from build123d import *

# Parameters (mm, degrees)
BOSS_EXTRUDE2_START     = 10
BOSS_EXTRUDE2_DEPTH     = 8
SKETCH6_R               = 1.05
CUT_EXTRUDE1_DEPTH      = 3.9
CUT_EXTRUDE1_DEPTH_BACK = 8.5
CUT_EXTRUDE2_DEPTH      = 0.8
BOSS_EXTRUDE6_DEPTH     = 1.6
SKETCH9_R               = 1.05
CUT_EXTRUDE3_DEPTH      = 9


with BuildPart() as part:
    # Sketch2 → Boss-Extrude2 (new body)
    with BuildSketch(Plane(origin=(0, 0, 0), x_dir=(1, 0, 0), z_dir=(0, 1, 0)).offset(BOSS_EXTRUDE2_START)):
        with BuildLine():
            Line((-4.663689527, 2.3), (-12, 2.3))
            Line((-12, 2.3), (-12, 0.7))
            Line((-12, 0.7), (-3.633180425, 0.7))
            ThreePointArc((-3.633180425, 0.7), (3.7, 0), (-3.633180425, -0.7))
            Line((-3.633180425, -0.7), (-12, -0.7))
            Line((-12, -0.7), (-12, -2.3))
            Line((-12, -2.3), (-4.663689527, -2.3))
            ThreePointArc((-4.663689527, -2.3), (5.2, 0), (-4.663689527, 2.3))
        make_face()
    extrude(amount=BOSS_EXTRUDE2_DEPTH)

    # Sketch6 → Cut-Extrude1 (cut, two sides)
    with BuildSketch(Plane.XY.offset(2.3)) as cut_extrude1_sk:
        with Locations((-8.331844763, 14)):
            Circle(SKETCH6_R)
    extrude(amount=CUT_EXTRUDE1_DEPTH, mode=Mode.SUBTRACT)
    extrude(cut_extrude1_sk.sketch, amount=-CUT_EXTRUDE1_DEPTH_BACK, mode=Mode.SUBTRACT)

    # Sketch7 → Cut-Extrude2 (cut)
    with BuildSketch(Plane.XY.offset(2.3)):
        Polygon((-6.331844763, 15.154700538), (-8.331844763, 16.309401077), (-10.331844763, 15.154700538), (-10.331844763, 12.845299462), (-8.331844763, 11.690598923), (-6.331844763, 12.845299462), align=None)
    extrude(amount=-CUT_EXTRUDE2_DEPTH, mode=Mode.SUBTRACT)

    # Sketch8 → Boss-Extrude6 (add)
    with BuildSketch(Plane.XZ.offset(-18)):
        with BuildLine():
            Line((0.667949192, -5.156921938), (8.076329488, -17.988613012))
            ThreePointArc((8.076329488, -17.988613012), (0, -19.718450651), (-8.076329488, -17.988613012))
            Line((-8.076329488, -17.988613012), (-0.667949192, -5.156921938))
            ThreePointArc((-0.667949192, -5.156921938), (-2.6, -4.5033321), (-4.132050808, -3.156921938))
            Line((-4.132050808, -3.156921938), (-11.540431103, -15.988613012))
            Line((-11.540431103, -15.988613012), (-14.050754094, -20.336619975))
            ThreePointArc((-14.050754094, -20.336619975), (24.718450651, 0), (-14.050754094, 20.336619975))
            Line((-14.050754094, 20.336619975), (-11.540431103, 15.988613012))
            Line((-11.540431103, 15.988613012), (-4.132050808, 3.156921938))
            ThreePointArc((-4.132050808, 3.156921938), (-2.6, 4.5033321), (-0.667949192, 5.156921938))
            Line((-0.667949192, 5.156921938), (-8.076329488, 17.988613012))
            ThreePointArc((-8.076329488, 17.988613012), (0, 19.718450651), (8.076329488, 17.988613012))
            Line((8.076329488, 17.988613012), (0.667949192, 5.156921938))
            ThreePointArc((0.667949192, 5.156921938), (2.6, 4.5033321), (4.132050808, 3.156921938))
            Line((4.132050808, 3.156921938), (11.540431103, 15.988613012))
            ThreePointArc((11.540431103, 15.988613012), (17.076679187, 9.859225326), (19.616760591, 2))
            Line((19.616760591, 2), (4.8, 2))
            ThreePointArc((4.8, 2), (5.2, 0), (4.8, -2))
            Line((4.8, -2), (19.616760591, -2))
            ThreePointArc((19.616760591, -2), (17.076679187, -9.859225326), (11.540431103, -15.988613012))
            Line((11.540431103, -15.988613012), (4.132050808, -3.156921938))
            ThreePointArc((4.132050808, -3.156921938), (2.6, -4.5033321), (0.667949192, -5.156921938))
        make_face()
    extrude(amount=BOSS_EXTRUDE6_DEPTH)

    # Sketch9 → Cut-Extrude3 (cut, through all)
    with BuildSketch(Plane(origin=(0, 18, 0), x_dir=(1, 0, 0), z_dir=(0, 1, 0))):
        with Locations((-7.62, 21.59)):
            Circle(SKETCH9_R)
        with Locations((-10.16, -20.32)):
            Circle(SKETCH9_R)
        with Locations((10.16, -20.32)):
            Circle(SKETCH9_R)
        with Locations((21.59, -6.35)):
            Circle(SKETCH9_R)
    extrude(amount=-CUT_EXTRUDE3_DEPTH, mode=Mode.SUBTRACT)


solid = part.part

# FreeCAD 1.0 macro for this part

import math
import FreeCAD as App
import Part
import Sketcher
from FreeCAD import Vector
Q = App.Units.Quantity


def add_polygon(sketch, points):
    """Adds a closed chain of lines whose ends are joined by coincident constraints."""
    first, n = sketch.GeometryCount, len(points)
    for a, b in zip(points, points[1:] + points[:1]):
        sketch.addGeometry(Part.LineSegment(App.Vector(*a, 0), App.Vector(*b, 0)), False)
    for i in range(n):
        sketch.addConstraint(Sketcher.Constraint("Coincident", first + i, 2, first + (i + 1) % n, 1))

doc = App.newDocument("Part")
body = doc.addObject("PartDesign::Body", "Body")

# Sketch on XZ plane
sketch1 = body.newObject("Sketcher::SketchObject", "Sketch")
sketch1.AttachmentSupport = (doc.getObject("XZ_Plane"), [""])
sketch1.MapMode = "FlatFace"
sketch1.AttachmentOffset = App.Placement(Vector(0, 0, -10), App.Rotation())
sketch1.addGeometry(Part.LineSegment(Vector(-4.7, -2.3, 0), Vector(-12, -2.3, 0)), False)
sketch1.addGeometry(Part.LineSegment(Vector(-12, -2.3, 0), Vector(-12, -0.7, 0)), False)
sketch1.addGeometry(Part.LineSegment(Vector(-12, -0.7, 0), Vector(-3.6, -0.7, 0)), False)
sketch1.addGeometry(Part.ArcOfCircle(Part.Circle(Vector(0, 0, 0), Vector(0, 0, 1), 3.7), math.radians(-169), math.radians(169)), False)
sketch1.addGeometry(Part.LineSegment(Vector(-3.6, 0.7, 0), Vector(-12, 0.7, 0)), False)
sketch1.addGeometry(Part.LineSegment(Vector(-12, 0.7, 0), Vector(-12, 2.3, 0)), False)
sketch1.addGeometry(Part.LineSegment(Vector(-12, 2.3, 0), Vector(-4.7, 2.3, 0)), False)
sketch1.addGeometry(Part.ArcOfCircle(Part.Circle(Vector(0, 0, 0), Vector(0, 0, 1), 5.2), math.radians(-154), math.radians(154)), False)
sketch1.addConstraint(Sketcher.Constraint("Coincident", 0, 2, 1, 1))
sketch1.addConstraint(Sketcher.Constraint("Coincident", 1, 2, 2, 1))
sketch1.addConstraint(Sketcher.Constraint("Coincident", 2, 2, 3, 1))
sketch1.addConstraint(Sketcher.Constraint("Coincident", 3, 2, 4, 1))
sketch1.addConstraint(Sketcher.Constraint("Coincident", 4, 2, 5, 1))
sketch1.addConstraint(Sketcher.Constraint("Coincident", 5, 2, 6, 1))
sketch1.addConstraint(Sketcher.Constraint("Coincident", 6, 2, 7, 2))
sketch1.addConstraint(Sketcher.Constraint("Coincident", 7, 1, 0, 1))
sketch1.addConstraint(Sketcher.Constraint("Horizontal", 0))
sketch1.addConstraint(Sketcher.Constraint("Vertical", 1))
sketch1.addConstraint(Sketcher.Constraint("Horizontal", 2))
sketch1.addConstraint(Sketcher.Constraint("Horizontal", 4))
sketch1.addConstraint(Sketcher.Constraint("Vertical", 5))
sketch1.addConstraint(Sketcher.Constraint("Horizontal", 6))
sketch1.addConstraint(Sketcher.Constraint("Coincident", 3, 3, -1, 1))
sketch1.addConstraint(Sketcher.Constraint("Coincident", 7, 3, -1, 1))
sketch1.addConstraint(Sketcher.Constraint("Symmetric", 1, 2, 4, 2, -1))
sketch1.addConstraint(Sketcher.Constraint("Vertical", 6, 2, 7, 1))
sketch1.addConstraint(Sketcher.Constraint("Radius", 3, 3.7))
sketch1.addConstraint(Sketcher.Constraint("Radius", 7, 5.2))
sketch1.addConstraint(Sketcher.Constraint("DistanceY", 1, 1, 1, 2, 1.6))
sketch1.addConstraint(Sketcher.Constraint("DistanceX", 0, 2, -1, 1, 12.0))
sketch1.addConstraint(Sketcher.Constraint("DistanceY", 0, 2, 3, 2, 3.0))
pad1 = body.newObject("PartDesign::Pad", "Pad")
pad1.Profile = sketch1
pad1.Length = 8
pad1.Reversed = True

# Sketch on XY plane
sketch2 = body.newObject("Sketcher::SketchObject", "Sketch001")
sketch2.AttachmentSupport = (doc.getObject("XY_Plane"), [""])
sketch2.MapMode = "FlatFace"
sketch2.AttachmentOffset = App.Placement(Vector(0, 0, 2.3), App.Rotation())
sketch2.addGeometry(Part.Circle(Vector(-8.3, 14, 0), Vector(0, 0, 1), 1.1), False)
sketch2.addConstraint(Sketcher.Constraint("Diameter", 0, 2.1))
sketch2.addConstraint(Sketcher.Constraint("DistanceY", -1, 1, 0, 3, 14.0))
sketch2.addConstraint(Sketcher.Constraint("DistanceX", 0, 3, -1, 1, 8.331845))
pocket1 = body.newObject("PartDesign::Pocket", "Pocket")
pocket1.Profile = sketch2
pocket1.Type = "ThroughAll"
pocket1.Midplane = True

# Sketch on XY plane
sketch3 = body.newObject("Sketcher::SketchObject", "Sketch002")
sketch3.AttachmentSupport = (doc.getObject("XY_Plane"), [""])
sketch3.MapMode = "FlatFace"
sketch3.AttachmentOffset = App.Placement(Vector(0, 0, 2.3), App.Rotation())
add_polygon(sketch3, [(-6.3, 15.2), (-8.3, 16.3), (-10.3, 15.2), (-10.3, 12.8), (-8.3, 11.7), (-6.3, 12.8)])  # lines 0-5
sketch3.addConstraint(Sketcher.Constraint("Vertical", 2))
sketch3.addConstraint(Sketcher.Constraint("Vertical", 5))
sketch3.addConstraint(Sketcher.Constraint("Parallel", 0, 3))
sketch3.addConstraint(Sketcher.Constraint("Parallel", 1, 4))
sketch3.addConstraint(Sketcher.Constraint("Horizontal", 2, 2, 4, 2))
sketch3.addConstraint(Sketcher.Constraint("Horizontal", 1, 2, 5, 2))
sketch3.addConstraint(Sketcher.Constraint("Vertical", 0, 2, 3, 2))
sketch3.addConstraint(Sketcher.Constraint("Angle", 0, Q("150 deg")))
sketch3.addConstraint(Sketcher.Constraint("DistanceX", 1, 2, 0, 2, 2.0))
sketch3.addConstraint(Sketcher.Constraint("DistanceY", 2, 2, 2, 1, 2.309401))
sketch3.addConstraint(Sketcher.Constraint("DistanceY", -1, 1, 0, 2, 16.309401))
sketch3.addConstraint(Sketcher.Constraint("DistanceX", 0, 2, -1, 1, 8.331845))
pocket2 = body.newObject("PartDesign::Pocket", "Pocket001")
pocket2.Profile = sketch3
pocket2.Length = 0.8

# Sketch on XZ plane
sketch4 = body.newObject("Sketcher::SketchObject", "Sketch003")
sketch4.AttachmentSupport = (doc.getObject("XZ_Plane"), [""])
sketch4.MapMode = "FlatFace"
sketch4.AttachmentOffset = App.Placement(Vector(0, 0, -18), App.Rotation())
sketch4.addGeometry(Part.LineSegment(Vector(0.7, -5.2, 0), Vector(8.1, -18, 0)), False)
sketch4.addGeometry(Part.ArcOfCircle(Part.Circle(Vector(0, 0, 0), Vector(0, 0, 1), 19.7), math.radians(-114), math.radians(-66)), False)
sketch4.addGeometry(Part.LineSegment(Vector(-8.1, -18, 0), Vector(-0.7, -5.2, 0)), False)
sketch4.addGeometry(Part.ArcOfCircle(Part.Circle(Vector(0, 0, 0), Vector(0, 0, 1), 5.2), math.radians(-143), math.radians(-97)), False)
sketch4.addGeometry(Part.LineSegment(Vector(-4.1, -3.2, 0), Vector(-11.5, -16, 0)), False)
sketch4.addGeometry(Part.LineSegment(Vector(-11.5, -16, 0), Vector(-14.1, -20.3, 0)), False)
sketch4.addGeometry(Part.ArcOfCircle(Part.Circle(Vector(0, 0, 0), Vector(0, 0, 1), 24.7), math.radians(-125), math.radians(125)), False)
sketch4.addGeometry(Part.LineSegment(Vector(-14.1, 20.3, 0), Vector(-11.5, 16, 0)), False)
sketch4.addGeometry(Part.LineSegment(Vector(-11.5, 16, 0), Vector(-4.1, 3.2, 0)), False)
sketch4.addGeometry(Part.ArcOfCircle(Part.Circle(Vector(0, 0, 0), Vector(0, 0, 1), 5.2), math.radians(97), math.radians(143)), False)
sketch4.addGeometry(Part.LineSegment(Vector(-0.7, 5.2, 0), Vector(-8.1, 18, 0)), False)
sketch4.addGeometry(Part.ArcOfCircle(Part.Circle(Vector(0, 0, 0), Vector(0, 0, 1), 19.7), math.radians(66), math.radians(114)), False)
sketch4.addGeometry(Part.LineSegment(Vector(8.1, 18, 0), Vector(0.7, 5.2, 0)), False)
sketch4.addGeometry(Part.ArcOfCircle(Part.Circle(Vector(0, 0, 0), Vector(0, 0, 1), 5.2), math.radians(37), math.radians(83)), False)
sketch4.addGeometry(Part.LineSegment(Vector(4.1, 3.2, 0), Vector(11.5, 16, 0)), False)
sketch4.addGeometry(Part.ArcOfCircle(Part.Circle(Vector(0, 0, 0), Vector(0, 0, 1), 19.7), math.radians(6), math.radians(54)), False)
sketch4.addGeometry(Part.LineSegment(Vector(19.6, 2, 0), Vector(4.8, 2, 0)), False)
sketch4.addGeometry(Part.ArcOfCircle(Part.Circle(Vector(0, 0, 0), Vector(0, 0, 1), 5.2), math.radians(-23), math.radians(23)), False)
sketch4.addGeometry(Part.LineSegment(Vector(4.8, -2, 0), Vector(19.6, -2, 0)), False)
sketch4.addGeometry(Part.ArcOfCircle(Part.Circle(Vector(0, 0, 0), Vector(0, 0, 1), 19.7), math.radians(-54), math.radians(-6)), False)
sketch4.addGeometry(Part.LineSegment(Vector(11.5, -16, 0), Vector(4.1, -3.2, 0)), False)
sketch4.addGeometry(Part.ArcOfCircle(Part.Circle(Vector(0, 0, 0), Vector(0, 0, 1), 5.2), math.radians(-83), math.radians(-37)), False)
sketch4.addConstraint(Sketcher.Constraint("Coincident", 0, 2, 1, 2))
sketch4.addConstraint(Sketcher.Constraint("Coincident", 1, 1, 2, 1))
sketch4.addConstraint(Sketcher.Constraint("Coincident", 2, 2, 3, 2))
sketch4.addConstraint(Sketcher.Constraint("Coincident", 3, 1, 4, 1))
sketch4.addConstraint(Sketcher.Constraint("Coincident", 4, 2, 5, 1))
sketch4.addConstraint(Sketcher.Constraint("Coincident", 5, 2, 6, 1))
sketch4.addConstraint(Sketcher.Constraint("Coincident", 6, 2, 7, 1))
sketch4.addConstraint(Sketcher.Constraint("Coincident", 7, 2, 8, 1))
sketch4.addConstraint(Sketcher.Constraint("Coincident", 8, 2, 9, 2))
sketch4.addConstraint(Sketcher.Constraint("Coincident", 9, 1, 10, 1))
sketch4.addConstraint(Sketcher.Constraint("Coincident", 10, 2, 11, 2))
sketch4.addConstraint(Sketcher.Constraint("Coincident", 11, 1, 12, 1))
sketch4.addConstraint(Sketcher.Constraint("Coincident", 12, 2, 13, 2))
sketch4.addConstraint(Sketcher.Constraint("Coincident", 13, 1, 14, 1))
sketch4.addConstraint(Sketcher.Constraint("Coincident", 14, 2, 15, 2))
sketch4.addConstraint(Sketcher.Constraint("Coincident", 15, 1, 16, 1))
sketch4.addConstraint(Sketcher.Constraint("Coincident", 16, 2, 17, 2))
sketch4.addConstraint(Sketcher.Constraint("Coincident", 17, 1, 18, 1))
sketch4.addConstraint(Sketcher.Constraint("Coincident", 18, 2, 19, 2))
sketch4.addConstraint(Sketcher.Constraint("Coincident", 19, 1, 20, 1))
sketch4.addConstraint(Sketcher.Constraint("Coincident", 20, 2, 21, 2))
sketch4.addConstraint(Sketcher.Constraint("Coincident", 21, 1, 0, 1))
sketch4.addConstraint(Sketcher.Constraint("Horizontal", 16))
sketch4.addConstraint(Sketcher.Constraint("Horizontal", 18))
sketch4.addConstraint(Sketcher.Constraint("Coincident", 1, 3, -1, 1))
sketch4.addConstraint(Sketcher.Constraint("Coincident", 3, 3, -1, 1))
sketch4.addConstraint(Sketcher.Constraint("Coincident", 6, 3, -1, 1))
sketch4.addConstraint(Sketcher.Constraint("Coincident", 9, 3, -1, 1))
sketch4.addConstraint(Sketcher.Constraint("Coincident", 11, 3, -1, 1))
sketch4.addConstraint(Sketcher.Constraint("Coincident", 13, 3, -1, 1))
sketch4.addConstraint(Sketcher.Constraint("Coincident", 15, 3, -1, 1))
sketch4.addConstraint(Sketcher.Constraint("Coincident", 17, 3, -1, 1))
sketch4.addConstraint(Sketcher.Constraint("Coincident", 19, 3, -1, 1))
sketch4.addConstraint(Sketcher.Constraint("Coincident", 21, 3, -1, 1))
sketch4.addConstraint(Sketcher.Constraint("Equal", 3, 9))
sketch4.addConstraint(Sketcher.Constraint("Equal", 1, 11))
sketch4.addConstraint(Sketcher.Constraint("Equal", 9, 13))
sketch4.addConstraint(Sketcher.Constraint("Equal", 11, 15))
sketch4.addConstraint(Sketcher.Constraint("Equal", 13, 17))
sketch4.addConstraint(Sketcher.Constraint("Equal", 15, 19))
sketch4.addConstraint(Sketcher.Constraint("Equal", 17, 21))
sketch4.addConstraint(Sketcher.Constraint("Symmetric", 4, 2, 14, 2, -1, 1))
sketch4.addConstraint(Sketcher.Constraint("Symmetric", 7, 2, 19, 1, -1, 1))
sketch4.addConstraint(Sketcher.Constraint("Parallel", 2, 4))
sketch4.addConstraint(Sketcher.Constraint("Parallel", 4, 5))
sketch4.addConstraint(Sketcher.Constraint("Parallel", 0, 7))
sketch4.addConstraint(Sketcher.Constraint("Parallel", 7, 8))
sketch4.addConstraint(Sketcher.Constraint("Parallel", 8, 10))
sketch4.addConstraint(Sketcher.Constraint("Parallel", 5, 12))
sketch4.addConstraint(Sketcher.Constraint("Parallel", 12, 14))
sketch4.addConstraint(Sketcher.Constraint("Parallel", 10, 20))
sketch4.addConstraint(Sketcher.Constraint("Horizontal", 0, 2, 1, 1))
sketch4.addConstraint(Sketcher.Constraint("Horizontal", 10, 2, 11, 1))
sketch4.addConstraint(Sketcher.Constraint("Horizontal", 9, 1, 12, 2))
sketch4.addConstraint(Sketcher.Constraint("Horizontal", 8, 2, 13, 1))
sketch4.addConstraint(Sketcher.Constraint("Vertical", 2, 2, 9, 1))
sketch4.addConstraint(Sketcher.Constraint("Vertical", 16, 2, 17, 1))
sketch4.addConstraint(Sketcher.Constraint("Equal", 2, 4))
sketch4.addConstraint(Sketcher.Constraint("Radius", 3, 5.2))
sketch4.addConstraint(Sketcher.Constraint("Angle", 0, Q("-60 deg")))
sketch4.addConstraint(Sketcher.Constraint("DistanceY", -1, 1, 15, 1, 2.0))
sketch4.addConstraint(Sketcher.Constraint("DistanceY", 2, 2, 3, 1, 2.0))
sketch4.addConstraint(Sketcher.Constraint("Radius", 1, 19.718451))
sketch4.addConstraint(Sketcher.Constraint("Radius", 6, 24.718451))
pad2 = body.newObject("PartDesign::Pad", "Pad001")
pad2.Profile = sketch4
pad2.Length = 1.6

# Sketch on XZ plane
sketch5 = body.newObject("Sketcher::SketchObject", "Sketch004")
sketch5.AttachmentSupport = (doc.getObject("XZ_Plane"), [""])
sketch5.MapMode = "FlatFace"
sketch5.AttachmentOffset = App.Placement(Vector(0, 0, -18), App.Rotation())
sketch5.addGeometry(Part.Circle(Vector(-7.6, -21.6, 0), Vector(0, 0, 1), 1.1), False)
sketch5.addGeometry(Part.Circle(Vector(-10.2, 20.3, 0), Vector(0, 0, 1), 1.1), False)
sketch5.addGeometry(Part.Circle(Vector(10.2, 20.3, 0), Vector(0, 0, 1), 1.1), False)
sketch5.addGeometry(Part.Circle(Vector(21.6, 6.3, 0), Vector(0, 0, 1), 1.1), False)
sketch5.addConstraint(Sketcher.Constraint("Equal", 0, 1))
sketch5.addConstraint(Sketcher.Constraint("Equal", 1, 2))
sketch5.addConstraint(Sketcher.Constraint("Equal", 2, 3))
sketch5.addConstraint(Sketcher.Constraint("Symmetric", 1, 3, 2, 3, -2))
sketch5.addConstraint(Sketcher.Constraint("Diameter", 0, 2.1))
sketch5.addConstraint(Sketcher.Constraint("DistanceX", 0, 3, -1, 1, 7.62))
sketch5.addConstraint(Sketcher.Constraint("DistanceY", 0, 3, -1, 1, 21.59))
sketch5.addConstraint(Sketcher.Constraint("DistanceX", 1, 3, -1, 1, 10.16))
sketch5.addConstraint(Sketcher.Constraint("DistanceY", -1, 1, 1, 3, 20.32))
sketch5.addConstraint(Sketcher.Constraint("DistanceX", -1, 1, 3, 3, 21.59))
sketch5.addConstraint(Sketcher.Constraint("DistanceY", -1, 1, 3, 3, 6.35))
pocket3 = body.newObject("PartDesign::Pocket", "Pocket002")
pocket3.Profile = sketch5
pocket3.Type = "ThroughAll"
pocket3.Reversed = True

doc.recompute()
